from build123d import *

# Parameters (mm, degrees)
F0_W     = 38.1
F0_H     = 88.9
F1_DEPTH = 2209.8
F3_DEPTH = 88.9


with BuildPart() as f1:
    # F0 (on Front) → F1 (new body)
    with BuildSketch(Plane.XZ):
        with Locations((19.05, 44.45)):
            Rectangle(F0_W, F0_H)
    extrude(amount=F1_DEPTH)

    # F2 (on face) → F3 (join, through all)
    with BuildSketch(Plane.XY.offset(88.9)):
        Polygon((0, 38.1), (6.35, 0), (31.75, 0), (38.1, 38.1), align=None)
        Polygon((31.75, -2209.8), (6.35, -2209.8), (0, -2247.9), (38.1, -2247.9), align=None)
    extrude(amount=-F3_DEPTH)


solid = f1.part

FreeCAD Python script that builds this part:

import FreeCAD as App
import Part
import Sketcher
Q = App.Units.Quantity

doc = App.newDocument("Part")
body = doc.addObject("PartDesign::Body", "Body")

sketch1 = body.newObject("Sketcher::SketchObject", "Sketch")
sketch1.AttachmentSupport = (doc.getObject("XZ_Plane"), [""])
sketch1.MapMode = "FlatFace"
sketch1.addGeometry([
    Part.LineSegment(App.Vector(0, 88.9, 0), App.Vector(0, 0, 0)),
    Part.LineSegment(App.Vector(0, 0, 0), App.Vector(38.1, 0, 0)),
    Part.LineSegment(App.Vector(38.1, 0, 0), App.Vector(38.1, 88.9, 0)),
    Part.LineSegment(App.Vector(38.1, 88.9, 0), App.Vector(0, 88.9, 0)),
], False)
sketch1.addConstraint([
    Sketcher.Constraint("Coincident", 0, 2, 1, 1),
    Sketcher.Constraint("Coincident", 1, 2, 2, 1),
    Sketcher.Constraint("Coincident", 2, 2, 3, 1),
    Sketcher.Constraint("Coincident", 3, 2, 0, 1),
    Sketcher.Constraint("Vertical", 0),
    Sketcher.Constraint("Horizontal", 1),
    Sketcher.Constraint("Vertical", 2),
    Sketcher.Constraint("Horizontal", 3),
    Sketcher.Constraint("Coincident", 0, 2, -1, 1),
    Sketcher.Constraint("DistanceX", 1, 1, 1, 2, Q("1.5 in")),
    Sketcher.Constraint("DistanceY", 0, 2, 0, 1, Q("3.5 in")),
])
pad1 = body.newObject("PartDesign::Pad", "Pad")
pad1.Profile = sketch1
pad1.Length = Q("87 in")

sketch2 = body.newObject("Sketcher::SketchObject", "Sketch001")
sketch2.AttachmentSupport = (doc.getObject("XY_Plane"), [""])
sketch2.MapMode = "FlatFace"
sketch2.AttachmentOffset = App.Placement(App.Vector(0, 0, 3.5 * 25.4), App.Rotation())
sketch2.addGeometry([
    Part.LineSegment(App.Vector(0, 38.1, 0), App.Vector(6.35, 0, 0)),
    Part.LineSegment(App.Vector(6.35, 0, 0), App.Vector(31.75, 0, 0)),
    Part.LineSegment(App.Vector(31.75, 0, 0), App.Vector(38.1, 38.1, 0)),
    Part.LineSegment(App.Vector(38.1, 38.1, 0), App.Vector(0, 38.1, 0)),
    Part.LineSegment(App.Vector(31.75, -2209.8, 0), App.Vector(6.35, -2209.8, 0)),
    Part.LineSegment(App.Vector(6.35, -2209.8, 0), App.Vector(0, -2247.9, 0)),
    Part.LineSegment(App.Vector(0, -2247.9, 0), App.Vector(38.1, -2247.9, 0)),
    Part.LineSegment(App.Vector(38.1, -2247.9, 0), App.Vector(31.75, -2209.8, 0)),
], False)
sketch2.addConstraint([
    Sketcher.Constraint("Coincident", 0, 2, 1, 1),
    Sketcher.Constraint("Coincident", 1, 2, 2, 1),
    Sketcher.Constraint("Coincident", 2, 2, 3, 1),
    Sketcher.Constraint("Coincident", 3, 2, 0, 1),
    Sketcher.Constraint("Coincident", 4, 2, 5, 1),
    Sketcher.Constraint("Coincident", 5, 2, 6, 1),
    Sketcher.Constraint("Coincident", 6, 2, 7, 1),
    Sketcher.Constraint("Coincident", 7, 2, 4, 1),
    Sketcher.Constraint("Horizontal", 1),
    Sketcher.Constraint("Horizontal", 3),
    Sketcher.Constraint("Horizontal", 4),
    Sketcher.Constraint("Horizontal", 6),
    Sketcher.Constraint("PointOnObject", 0, 2, -1),
    Sketcher.Constraint("PointOnObject", 3, 2, -2),
    Sketcher.Constraint("PointOnObject", 5, 2, -2),
    Sketcher.Constraint("Parallel", 2, 5),
    Sketcher.Constraint("Parallel", 0, 7),
    Sketcher.Constraint("Vertical", 0, 2, 4, 2),
    Sketcher.Constraint("Vertical", 2, 2, 6, 2),
    Sketcher.Constraint("Vertical", 1, 2, 7, 2),
    Sketcher.Constraint("DistanceX", 1, 1, 1, 2, Q("1 in")),
    Sketcher.Constraint("DistanceX", 3, 2, 3, 1, Q("1.5 in")),
    Sketcher.Constraint("DistanceY", 4, 2, -1, 1, Q("87 in")),
    Sketcher.Constraint("DistanceY", 5, 2, 3, 2, Q("90 in")),
])
pad2 = body.newObject("PartDesign::Pad", "Pad001")
pad2.Profile = sketch2
pad2.Length = Q("3.5 in")
pad2.Reversed = True

doc.recompute()
